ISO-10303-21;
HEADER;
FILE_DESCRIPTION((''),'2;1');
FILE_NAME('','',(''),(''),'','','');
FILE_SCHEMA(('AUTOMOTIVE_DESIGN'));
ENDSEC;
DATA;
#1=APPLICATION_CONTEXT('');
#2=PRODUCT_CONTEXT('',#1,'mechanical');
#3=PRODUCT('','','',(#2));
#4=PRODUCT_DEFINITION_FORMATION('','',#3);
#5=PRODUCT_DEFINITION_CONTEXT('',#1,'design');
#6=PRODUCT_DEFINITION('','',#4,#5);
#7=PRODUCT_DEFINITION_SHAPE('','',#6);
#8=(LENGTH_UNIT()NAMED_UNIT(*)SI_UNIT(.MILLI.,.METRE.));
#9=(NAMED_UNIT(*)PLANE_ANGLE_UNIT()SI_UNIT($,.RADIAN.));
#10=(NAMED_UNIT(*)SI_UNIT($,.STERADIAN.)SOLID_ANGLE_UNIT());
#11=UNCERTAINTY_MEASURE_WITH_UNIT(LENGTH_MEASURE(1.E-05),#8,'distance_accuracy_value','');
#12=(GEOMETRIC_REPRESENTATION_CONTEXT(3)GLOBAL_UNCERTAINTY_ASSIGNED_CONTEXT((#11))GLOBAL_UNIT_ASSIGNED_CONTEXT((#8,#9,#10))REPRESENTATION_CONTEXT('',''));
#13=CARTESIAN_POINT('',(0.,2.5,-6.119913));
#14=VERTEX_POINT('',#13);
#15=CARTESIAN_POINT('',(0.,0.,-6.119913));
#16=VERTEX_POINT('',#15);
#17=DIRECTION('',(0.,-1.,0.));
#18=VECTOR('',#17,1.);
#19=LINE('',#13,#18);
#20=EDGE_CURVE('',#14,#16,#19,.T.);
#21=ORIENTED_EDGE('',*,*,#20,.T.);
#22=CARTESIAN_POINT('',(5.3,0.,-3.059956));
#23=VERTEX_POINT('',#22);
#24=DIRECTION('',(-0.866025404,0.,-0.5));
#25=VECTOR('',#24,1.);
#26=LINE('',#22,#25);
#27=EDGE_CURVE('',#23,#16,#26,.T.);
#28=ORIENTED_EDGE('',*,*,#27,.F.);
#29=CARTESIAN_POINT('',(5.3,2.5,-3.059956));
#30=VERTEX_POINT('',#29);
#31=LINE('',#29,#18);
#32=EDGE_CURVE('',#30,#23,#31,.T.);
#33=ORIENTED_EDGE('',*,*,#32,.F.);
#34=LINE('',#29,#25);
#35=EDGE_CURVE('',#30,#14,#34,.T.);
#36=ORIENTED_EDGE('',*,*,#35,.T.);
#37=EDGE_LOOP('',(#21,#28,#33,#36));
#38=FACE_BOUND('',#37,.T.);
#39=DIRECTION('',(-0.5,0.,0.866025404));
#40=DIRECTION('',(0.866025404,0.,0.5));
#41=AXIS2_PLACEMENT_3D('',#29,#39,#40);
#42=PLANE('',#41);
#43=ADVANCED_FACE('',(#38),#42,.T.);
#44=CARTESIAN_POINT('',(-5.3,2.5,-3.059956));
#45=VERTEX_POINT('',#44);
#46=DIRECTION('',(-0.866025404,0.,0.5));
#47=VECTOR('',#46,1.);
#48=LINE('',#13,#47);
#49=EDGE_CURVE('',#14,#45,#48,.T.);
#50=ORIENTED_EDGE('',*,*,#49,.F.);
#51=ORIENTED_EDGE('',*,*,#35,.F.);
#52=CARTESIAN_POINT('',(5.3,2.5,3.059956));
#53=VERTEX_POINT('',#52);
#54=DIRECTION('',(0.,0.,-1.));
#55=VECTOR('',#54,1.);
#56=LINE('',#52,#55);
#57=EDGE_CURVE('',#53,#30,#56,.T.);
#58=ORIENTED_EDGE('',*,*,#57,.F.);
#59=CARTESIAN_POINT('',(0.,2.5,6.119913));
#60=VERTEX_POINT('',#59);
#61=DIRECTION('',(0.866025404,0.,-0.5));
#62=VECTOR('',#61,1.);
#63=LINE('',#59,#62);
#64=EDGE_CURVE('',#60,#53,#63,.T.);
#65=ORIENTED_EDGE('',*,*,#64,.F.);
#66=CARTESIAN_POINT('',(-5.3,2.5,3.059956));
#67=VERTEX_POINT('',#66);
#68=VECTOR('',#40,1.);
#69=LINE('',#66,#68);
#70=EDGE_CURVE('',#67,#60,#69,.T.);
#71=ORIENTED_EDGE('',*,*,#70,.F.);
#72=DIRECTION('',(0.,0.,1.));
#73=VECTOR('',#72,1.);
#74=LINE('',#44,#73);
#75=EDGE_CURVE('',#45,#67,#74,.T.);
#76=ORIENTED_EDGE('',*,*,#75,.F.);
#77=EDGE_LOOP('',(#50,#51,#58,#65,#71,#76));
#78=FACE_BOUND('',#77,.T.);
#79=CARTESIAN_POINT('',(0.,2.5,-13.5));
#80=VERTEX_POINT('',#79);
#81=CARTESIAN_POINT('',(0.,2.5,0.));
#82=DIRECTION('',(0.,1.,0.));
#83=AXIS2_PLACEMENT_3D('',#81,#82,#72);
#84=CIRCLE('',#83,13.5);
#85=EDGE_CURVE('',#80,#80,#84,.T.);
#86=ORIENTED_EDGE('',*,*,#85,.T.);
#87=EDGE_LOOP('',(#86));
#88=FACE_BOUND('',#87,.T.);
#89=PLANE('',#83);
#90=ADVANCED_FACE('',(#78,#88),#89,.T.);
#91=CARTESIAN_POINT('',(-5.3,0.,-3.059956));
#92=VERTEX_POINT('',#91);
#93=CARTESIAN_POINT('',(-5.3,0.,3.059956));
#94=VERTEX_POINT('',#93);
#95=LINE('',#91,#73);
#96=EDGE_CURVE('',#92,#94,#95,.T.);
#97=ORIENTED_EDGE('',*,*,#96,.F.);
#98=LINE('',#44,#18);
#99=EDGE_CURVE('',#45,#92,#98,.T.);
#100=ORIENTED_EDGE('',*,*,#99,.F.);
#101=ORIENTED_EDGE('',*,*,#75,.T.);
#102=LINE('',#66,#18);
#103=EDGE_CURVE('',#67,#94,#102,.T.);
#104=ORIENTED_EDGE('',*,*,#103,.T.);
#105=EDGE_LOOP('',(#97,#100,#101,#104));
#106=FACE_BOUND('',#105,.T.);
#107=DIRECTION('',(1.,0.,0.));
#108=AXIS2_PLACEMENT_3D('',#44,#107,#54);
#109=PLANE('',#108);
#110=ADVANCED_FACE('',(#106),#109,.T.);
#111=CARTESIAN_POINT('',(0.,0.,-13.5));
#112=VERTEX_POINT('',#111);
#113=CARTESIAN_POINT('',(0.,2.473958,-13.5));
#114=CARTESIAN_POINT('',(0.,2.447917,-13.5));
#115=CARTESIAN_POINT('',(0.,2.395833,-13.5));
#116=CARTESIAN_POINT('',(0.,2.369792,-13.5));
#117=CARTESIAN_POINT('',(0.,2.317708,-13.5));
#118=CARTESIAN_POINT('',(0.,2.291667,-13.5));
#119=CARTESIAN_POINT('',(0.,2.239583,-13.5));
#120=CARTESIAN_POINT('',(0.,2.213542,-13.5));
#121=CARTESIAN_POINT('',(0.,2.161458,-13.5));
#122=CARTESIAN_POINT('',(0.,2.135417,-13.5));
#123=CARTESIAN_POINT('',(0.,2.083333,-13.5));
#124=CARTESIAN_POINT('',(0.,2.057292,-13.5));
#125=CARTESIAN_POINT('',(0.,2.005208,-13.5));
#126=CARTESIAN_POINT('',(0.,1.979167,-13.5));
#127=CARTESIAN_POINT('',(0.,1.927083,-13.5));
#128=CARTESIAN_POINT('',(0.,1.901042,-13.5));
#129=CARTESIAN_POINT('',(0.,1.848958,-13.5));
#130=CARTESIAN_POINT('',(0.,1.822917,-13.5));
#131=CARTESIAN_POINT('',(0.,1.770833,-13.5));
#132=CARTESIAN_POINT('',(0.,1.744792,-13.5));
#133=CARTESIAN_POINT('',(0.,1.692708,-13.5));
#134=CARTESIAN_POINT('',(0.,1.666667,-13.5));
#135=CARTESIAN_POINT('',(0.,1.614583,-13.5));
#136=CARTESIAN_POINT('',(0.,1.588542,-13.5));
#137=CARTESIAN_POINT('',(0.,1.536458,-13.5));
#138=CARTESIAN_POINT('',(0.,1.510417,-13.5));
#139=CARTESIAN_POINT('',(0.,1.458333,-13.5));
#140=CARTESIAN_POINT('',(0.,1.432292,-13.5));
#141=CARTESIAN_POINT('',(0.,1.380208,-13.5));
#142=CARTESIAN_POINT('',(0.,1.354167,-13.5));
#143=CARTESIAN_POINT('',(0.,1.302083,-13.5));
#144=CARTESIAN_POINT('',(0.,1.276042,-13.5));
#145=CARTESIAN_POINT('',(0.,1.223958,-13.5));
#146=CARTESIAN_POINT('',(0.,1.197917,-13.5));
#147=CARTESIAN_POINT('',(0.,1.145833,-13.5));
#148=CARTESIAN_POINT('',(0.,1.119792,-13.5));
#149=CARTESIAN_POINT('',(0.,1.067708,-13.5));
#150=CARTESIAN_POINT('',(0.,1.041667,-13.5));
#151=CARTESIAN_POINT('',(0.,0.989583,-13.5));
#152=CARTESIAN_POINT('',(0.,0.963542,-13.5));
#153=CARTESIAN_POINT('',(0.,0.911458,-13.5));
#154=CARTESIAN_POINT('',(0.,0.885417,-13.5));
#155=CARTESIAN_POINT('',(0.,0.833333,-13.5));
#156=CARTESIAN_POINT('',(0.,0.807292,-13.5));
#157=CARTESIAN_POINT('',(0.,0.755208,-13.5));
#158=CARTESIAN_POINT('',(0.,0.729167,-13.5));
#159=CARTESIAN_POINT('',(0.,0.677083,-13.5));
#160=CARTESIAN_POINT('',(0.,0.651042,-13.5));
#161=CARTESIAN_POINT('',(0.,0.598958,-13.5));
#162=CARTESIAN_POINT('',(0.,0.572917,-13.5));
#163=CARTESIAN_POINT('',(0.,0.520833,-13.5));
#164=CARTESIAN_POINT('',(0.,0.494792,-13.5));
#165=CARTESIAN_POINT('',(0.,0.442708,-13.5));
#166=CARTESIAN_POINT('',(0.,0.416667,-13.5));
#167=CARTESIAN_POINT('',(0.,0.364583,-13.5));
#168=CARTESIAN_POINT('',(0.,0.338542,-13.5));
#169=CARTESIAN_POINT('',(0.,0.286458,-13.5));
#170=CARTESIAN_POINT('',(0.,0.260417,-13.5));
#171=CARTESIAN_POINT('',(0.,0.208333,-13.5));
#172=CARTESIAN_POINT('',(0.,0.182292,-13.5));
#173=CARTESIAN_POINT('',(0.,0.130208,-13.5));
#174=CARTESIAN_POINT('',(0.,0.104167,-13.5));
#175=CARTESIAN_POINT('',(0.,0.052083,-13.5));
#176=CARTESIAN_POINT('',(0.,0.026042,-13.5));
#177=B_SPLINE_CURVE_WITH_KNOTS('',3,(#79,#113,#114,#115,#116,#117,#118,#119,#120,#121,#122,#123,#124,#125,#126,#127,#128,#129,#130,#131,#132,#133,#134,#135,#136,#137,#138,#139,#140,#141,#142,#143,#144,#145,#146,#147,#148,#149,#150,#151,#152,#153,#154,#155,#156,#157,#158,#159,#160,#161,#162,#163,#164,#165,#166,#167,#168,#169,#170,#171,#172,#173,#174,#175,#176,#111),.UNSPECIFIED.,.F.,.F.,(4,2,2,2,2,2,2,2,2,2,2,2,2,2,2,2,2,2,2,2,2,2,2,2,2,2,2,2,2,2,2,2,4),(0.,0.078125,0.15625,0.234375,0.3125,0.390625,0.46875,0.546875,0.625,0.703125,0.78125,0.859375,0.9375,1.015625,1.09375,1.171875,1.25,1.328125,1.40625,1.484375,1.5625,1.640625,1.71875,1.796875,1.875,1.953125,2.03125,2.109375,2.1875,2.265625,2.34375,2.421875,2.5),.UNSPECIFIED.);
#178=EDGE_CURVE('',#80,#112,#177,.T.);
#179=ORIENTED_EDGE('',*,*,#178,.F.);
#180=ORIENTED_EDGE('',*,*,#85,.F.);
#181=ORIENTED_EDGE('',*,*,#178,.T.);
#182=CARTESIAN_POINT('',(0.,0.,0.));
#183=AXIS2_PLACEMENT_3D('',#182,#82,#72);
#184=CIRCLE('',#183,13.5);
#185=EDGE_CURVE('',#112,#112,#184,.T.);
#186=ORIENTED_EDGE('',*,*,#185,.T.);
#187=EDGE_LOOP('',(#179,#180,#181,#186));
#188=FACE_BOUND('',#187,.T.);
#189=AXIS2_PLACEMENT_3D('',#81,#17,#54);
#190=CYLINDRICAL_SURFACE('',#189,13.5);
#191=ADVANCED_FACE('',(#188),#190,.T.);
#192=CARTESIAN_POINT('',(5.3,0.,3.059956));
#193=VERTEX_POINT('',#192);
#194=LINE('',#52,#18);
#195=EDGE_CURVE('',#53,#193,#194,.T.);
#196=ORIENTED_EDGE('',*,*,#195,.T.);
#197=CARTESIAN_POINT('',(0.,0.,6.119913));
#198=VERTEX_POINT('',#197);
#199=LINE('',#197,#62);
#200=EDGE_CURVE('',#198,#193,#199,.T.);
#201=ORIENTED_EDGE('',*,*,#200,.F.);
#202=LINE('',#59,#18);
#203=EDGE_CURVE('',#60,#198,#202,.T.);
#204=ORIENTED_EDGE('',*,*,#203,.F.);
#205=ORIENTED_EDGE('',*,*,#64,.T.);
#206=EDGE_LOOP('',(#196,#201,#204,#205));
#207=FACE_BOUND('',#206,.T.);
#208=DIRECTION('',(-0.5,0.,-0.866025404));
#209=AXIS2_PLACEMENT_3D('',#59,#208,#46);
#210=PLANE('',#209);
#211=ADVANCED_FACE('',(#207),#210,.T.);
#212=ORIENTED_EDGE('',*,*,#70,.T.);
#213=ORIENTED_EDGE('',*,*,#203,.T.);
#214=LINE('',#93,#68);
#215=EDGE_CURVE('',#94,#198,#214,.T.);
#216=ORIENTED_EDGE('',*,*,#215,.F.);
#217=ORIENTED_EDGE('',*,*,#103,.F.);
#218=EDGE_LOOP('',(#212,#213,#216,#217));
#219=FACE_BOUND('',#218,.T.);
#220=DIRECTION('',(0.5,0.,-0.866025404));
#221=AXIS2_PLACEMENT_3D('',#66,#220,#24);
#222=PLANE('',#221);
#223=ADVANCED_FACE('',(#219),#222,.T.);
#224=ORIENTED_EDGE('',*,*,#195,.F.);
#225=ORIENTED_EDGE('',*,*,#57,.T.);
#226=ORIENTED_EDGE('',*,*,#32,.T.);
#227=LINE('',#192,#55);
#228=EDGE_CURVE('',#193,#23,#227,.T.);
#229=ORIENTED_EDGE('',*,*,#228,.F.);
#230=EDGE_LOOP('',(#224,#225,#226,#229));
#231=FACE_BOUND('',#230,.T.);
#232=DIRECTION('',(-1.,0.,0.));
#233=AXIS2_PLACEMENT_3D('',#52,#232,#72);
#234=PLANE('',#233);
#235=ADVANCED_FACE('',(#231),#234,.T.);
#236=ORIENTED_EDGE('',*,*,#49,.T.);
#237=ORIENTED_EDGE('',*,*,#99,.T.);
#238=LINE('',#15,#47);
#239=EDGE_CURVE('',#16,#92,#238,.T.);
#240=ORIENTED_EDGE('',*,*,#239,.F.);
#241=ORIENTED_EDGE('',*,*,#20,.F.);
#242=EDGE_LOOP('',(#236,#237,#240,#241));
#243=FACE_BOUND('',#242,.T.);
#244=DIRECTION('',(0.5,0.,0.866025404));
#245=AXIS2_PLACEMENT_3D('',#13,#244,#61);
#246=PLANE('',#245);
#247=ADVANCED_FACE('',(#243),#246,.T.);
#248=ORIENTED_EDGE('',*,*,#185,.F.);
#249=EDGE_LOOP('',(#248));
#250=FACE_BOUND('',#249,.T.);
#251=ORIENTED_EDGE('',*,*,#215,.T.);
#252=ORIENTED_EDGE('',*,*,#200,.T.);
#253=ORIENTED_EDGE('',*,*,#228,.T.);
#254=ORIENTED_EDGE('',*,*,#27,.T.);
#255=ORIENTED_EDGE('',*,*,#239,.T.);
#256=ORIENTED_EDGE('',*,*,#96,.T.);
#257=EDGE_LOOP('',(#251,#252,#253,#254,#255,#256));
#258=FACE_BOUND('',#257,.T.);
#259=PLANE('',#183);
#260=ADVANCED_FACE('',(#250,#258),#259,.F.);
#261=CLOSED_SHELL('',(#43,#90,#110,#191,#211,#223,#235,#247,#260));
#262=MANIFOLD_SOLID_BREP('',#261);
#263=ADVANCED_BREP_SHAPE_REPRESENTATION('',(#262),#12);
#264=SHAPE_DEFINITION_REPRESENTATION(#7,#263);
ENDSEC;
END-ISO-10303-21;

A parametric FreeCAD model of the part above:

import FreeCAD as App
import Part
import Sketcher
Q = App.Units.Quantity


def add_polygon(sketch, points):
    """Adds a closed chain of lines whose ends are joined by coincident constraints."""
    first, n = sketch.GeometryCount, len(points)
    for a, b in zip(points, points[1:] + points[:1]):
        sketch.addGeometry(Part.LineSegment(App.Vector(*a, 0), App.Vector(*b, 0)), False)
    for i in range(n):
        sketch.addConstraint(Sketcher.Constraint("Coincident", first + i, 2, first + (i + 1) % n, 1))

doc = App.newDocument("Part")
params = doc.addObject("Spreadsheet::Sheet", "Params")
for row, (alias, value) in enumerate([
    ("sketch1_diameter", "27 mm"),
    ("pad1_length", "2.5 mm"),
], start=1):
    params.set(f"A{row}", alias)
    params.set(f"B{row}", "=" + value)
    params.setAlias(f"B{row}", alias)

body = doc.addObject("PartDesign::Body", "Body")

# Sketch on XZ plane
sketch1 = body.newObject("Sketcher::SketchObject", "Sketch")
sketch1.AttachmentSupport = (doc.getObject("XZ_Plane"), [""])
sketch1.MapMode = "FlatFace"
sketch1.addGeometry(Part.Circle(App.Vector(0, 0, 0), App.Vector(0, 0, 1), 14), False)  # 0
add_polygon(sketch1, [(5, 3), (0, 6), (-5, 3), (-5, -3), (0, -6), (5, -3)])  # lines 1-6
sketch1.addConstraint(Sketcher.Constraint("Vertical", 3))
sketch1.addConstraint(Sketcher.Constraint("Vertical", 6))
sketch1.addConstraint(Sketcher.Constraint("Coincident", 0, 3, -1, 1))
sketch1.addConstraint(Sketcher.Constraint("Symmetric", 1, 2, 4, 2, -1, 1))
sketch1.addConstraint(Sketcher.Constraint("Symmetric", 2, 2, 5, 2, -1, 1))
sketch1.addConstraint(Sketcher.Constraint("PointOnObject", 1, 2, -2))
sketch1.addConstraint(Sketcher.Constraint("Parallel", 1, 4))
sketch1.addConstraint(Sketcher.Constraint("Horizontal", 3, 2, 5, 2))
sketch1.addConstraint(Sketcher.Constraint("Diameter", 0, Q("27 mm")))
sketch1.addConstraint(Sketcher.Constraint("Angle", 1, Q("150 deg")))
sketch1.addConstraint(Sketcher.Constraint("DistanceX", 2, 2, -1, 1, Q("5.3 mm")))
sketch1.addConstraint(Sketcher.Constraint("DistanceY", 3, 2, 3, 1, Q("6.119913 mm")))
sketch1.setExpression("Constraints[14]", "Params.sketch1_diameter")
pad1 = body.newObject("PartDesign::Pad", "Pad")
pad1.Profile = sketch1
pad1.setExpression("Length", "Params.pad1_length")
pad1.Reversed = True

doc.recompute()
